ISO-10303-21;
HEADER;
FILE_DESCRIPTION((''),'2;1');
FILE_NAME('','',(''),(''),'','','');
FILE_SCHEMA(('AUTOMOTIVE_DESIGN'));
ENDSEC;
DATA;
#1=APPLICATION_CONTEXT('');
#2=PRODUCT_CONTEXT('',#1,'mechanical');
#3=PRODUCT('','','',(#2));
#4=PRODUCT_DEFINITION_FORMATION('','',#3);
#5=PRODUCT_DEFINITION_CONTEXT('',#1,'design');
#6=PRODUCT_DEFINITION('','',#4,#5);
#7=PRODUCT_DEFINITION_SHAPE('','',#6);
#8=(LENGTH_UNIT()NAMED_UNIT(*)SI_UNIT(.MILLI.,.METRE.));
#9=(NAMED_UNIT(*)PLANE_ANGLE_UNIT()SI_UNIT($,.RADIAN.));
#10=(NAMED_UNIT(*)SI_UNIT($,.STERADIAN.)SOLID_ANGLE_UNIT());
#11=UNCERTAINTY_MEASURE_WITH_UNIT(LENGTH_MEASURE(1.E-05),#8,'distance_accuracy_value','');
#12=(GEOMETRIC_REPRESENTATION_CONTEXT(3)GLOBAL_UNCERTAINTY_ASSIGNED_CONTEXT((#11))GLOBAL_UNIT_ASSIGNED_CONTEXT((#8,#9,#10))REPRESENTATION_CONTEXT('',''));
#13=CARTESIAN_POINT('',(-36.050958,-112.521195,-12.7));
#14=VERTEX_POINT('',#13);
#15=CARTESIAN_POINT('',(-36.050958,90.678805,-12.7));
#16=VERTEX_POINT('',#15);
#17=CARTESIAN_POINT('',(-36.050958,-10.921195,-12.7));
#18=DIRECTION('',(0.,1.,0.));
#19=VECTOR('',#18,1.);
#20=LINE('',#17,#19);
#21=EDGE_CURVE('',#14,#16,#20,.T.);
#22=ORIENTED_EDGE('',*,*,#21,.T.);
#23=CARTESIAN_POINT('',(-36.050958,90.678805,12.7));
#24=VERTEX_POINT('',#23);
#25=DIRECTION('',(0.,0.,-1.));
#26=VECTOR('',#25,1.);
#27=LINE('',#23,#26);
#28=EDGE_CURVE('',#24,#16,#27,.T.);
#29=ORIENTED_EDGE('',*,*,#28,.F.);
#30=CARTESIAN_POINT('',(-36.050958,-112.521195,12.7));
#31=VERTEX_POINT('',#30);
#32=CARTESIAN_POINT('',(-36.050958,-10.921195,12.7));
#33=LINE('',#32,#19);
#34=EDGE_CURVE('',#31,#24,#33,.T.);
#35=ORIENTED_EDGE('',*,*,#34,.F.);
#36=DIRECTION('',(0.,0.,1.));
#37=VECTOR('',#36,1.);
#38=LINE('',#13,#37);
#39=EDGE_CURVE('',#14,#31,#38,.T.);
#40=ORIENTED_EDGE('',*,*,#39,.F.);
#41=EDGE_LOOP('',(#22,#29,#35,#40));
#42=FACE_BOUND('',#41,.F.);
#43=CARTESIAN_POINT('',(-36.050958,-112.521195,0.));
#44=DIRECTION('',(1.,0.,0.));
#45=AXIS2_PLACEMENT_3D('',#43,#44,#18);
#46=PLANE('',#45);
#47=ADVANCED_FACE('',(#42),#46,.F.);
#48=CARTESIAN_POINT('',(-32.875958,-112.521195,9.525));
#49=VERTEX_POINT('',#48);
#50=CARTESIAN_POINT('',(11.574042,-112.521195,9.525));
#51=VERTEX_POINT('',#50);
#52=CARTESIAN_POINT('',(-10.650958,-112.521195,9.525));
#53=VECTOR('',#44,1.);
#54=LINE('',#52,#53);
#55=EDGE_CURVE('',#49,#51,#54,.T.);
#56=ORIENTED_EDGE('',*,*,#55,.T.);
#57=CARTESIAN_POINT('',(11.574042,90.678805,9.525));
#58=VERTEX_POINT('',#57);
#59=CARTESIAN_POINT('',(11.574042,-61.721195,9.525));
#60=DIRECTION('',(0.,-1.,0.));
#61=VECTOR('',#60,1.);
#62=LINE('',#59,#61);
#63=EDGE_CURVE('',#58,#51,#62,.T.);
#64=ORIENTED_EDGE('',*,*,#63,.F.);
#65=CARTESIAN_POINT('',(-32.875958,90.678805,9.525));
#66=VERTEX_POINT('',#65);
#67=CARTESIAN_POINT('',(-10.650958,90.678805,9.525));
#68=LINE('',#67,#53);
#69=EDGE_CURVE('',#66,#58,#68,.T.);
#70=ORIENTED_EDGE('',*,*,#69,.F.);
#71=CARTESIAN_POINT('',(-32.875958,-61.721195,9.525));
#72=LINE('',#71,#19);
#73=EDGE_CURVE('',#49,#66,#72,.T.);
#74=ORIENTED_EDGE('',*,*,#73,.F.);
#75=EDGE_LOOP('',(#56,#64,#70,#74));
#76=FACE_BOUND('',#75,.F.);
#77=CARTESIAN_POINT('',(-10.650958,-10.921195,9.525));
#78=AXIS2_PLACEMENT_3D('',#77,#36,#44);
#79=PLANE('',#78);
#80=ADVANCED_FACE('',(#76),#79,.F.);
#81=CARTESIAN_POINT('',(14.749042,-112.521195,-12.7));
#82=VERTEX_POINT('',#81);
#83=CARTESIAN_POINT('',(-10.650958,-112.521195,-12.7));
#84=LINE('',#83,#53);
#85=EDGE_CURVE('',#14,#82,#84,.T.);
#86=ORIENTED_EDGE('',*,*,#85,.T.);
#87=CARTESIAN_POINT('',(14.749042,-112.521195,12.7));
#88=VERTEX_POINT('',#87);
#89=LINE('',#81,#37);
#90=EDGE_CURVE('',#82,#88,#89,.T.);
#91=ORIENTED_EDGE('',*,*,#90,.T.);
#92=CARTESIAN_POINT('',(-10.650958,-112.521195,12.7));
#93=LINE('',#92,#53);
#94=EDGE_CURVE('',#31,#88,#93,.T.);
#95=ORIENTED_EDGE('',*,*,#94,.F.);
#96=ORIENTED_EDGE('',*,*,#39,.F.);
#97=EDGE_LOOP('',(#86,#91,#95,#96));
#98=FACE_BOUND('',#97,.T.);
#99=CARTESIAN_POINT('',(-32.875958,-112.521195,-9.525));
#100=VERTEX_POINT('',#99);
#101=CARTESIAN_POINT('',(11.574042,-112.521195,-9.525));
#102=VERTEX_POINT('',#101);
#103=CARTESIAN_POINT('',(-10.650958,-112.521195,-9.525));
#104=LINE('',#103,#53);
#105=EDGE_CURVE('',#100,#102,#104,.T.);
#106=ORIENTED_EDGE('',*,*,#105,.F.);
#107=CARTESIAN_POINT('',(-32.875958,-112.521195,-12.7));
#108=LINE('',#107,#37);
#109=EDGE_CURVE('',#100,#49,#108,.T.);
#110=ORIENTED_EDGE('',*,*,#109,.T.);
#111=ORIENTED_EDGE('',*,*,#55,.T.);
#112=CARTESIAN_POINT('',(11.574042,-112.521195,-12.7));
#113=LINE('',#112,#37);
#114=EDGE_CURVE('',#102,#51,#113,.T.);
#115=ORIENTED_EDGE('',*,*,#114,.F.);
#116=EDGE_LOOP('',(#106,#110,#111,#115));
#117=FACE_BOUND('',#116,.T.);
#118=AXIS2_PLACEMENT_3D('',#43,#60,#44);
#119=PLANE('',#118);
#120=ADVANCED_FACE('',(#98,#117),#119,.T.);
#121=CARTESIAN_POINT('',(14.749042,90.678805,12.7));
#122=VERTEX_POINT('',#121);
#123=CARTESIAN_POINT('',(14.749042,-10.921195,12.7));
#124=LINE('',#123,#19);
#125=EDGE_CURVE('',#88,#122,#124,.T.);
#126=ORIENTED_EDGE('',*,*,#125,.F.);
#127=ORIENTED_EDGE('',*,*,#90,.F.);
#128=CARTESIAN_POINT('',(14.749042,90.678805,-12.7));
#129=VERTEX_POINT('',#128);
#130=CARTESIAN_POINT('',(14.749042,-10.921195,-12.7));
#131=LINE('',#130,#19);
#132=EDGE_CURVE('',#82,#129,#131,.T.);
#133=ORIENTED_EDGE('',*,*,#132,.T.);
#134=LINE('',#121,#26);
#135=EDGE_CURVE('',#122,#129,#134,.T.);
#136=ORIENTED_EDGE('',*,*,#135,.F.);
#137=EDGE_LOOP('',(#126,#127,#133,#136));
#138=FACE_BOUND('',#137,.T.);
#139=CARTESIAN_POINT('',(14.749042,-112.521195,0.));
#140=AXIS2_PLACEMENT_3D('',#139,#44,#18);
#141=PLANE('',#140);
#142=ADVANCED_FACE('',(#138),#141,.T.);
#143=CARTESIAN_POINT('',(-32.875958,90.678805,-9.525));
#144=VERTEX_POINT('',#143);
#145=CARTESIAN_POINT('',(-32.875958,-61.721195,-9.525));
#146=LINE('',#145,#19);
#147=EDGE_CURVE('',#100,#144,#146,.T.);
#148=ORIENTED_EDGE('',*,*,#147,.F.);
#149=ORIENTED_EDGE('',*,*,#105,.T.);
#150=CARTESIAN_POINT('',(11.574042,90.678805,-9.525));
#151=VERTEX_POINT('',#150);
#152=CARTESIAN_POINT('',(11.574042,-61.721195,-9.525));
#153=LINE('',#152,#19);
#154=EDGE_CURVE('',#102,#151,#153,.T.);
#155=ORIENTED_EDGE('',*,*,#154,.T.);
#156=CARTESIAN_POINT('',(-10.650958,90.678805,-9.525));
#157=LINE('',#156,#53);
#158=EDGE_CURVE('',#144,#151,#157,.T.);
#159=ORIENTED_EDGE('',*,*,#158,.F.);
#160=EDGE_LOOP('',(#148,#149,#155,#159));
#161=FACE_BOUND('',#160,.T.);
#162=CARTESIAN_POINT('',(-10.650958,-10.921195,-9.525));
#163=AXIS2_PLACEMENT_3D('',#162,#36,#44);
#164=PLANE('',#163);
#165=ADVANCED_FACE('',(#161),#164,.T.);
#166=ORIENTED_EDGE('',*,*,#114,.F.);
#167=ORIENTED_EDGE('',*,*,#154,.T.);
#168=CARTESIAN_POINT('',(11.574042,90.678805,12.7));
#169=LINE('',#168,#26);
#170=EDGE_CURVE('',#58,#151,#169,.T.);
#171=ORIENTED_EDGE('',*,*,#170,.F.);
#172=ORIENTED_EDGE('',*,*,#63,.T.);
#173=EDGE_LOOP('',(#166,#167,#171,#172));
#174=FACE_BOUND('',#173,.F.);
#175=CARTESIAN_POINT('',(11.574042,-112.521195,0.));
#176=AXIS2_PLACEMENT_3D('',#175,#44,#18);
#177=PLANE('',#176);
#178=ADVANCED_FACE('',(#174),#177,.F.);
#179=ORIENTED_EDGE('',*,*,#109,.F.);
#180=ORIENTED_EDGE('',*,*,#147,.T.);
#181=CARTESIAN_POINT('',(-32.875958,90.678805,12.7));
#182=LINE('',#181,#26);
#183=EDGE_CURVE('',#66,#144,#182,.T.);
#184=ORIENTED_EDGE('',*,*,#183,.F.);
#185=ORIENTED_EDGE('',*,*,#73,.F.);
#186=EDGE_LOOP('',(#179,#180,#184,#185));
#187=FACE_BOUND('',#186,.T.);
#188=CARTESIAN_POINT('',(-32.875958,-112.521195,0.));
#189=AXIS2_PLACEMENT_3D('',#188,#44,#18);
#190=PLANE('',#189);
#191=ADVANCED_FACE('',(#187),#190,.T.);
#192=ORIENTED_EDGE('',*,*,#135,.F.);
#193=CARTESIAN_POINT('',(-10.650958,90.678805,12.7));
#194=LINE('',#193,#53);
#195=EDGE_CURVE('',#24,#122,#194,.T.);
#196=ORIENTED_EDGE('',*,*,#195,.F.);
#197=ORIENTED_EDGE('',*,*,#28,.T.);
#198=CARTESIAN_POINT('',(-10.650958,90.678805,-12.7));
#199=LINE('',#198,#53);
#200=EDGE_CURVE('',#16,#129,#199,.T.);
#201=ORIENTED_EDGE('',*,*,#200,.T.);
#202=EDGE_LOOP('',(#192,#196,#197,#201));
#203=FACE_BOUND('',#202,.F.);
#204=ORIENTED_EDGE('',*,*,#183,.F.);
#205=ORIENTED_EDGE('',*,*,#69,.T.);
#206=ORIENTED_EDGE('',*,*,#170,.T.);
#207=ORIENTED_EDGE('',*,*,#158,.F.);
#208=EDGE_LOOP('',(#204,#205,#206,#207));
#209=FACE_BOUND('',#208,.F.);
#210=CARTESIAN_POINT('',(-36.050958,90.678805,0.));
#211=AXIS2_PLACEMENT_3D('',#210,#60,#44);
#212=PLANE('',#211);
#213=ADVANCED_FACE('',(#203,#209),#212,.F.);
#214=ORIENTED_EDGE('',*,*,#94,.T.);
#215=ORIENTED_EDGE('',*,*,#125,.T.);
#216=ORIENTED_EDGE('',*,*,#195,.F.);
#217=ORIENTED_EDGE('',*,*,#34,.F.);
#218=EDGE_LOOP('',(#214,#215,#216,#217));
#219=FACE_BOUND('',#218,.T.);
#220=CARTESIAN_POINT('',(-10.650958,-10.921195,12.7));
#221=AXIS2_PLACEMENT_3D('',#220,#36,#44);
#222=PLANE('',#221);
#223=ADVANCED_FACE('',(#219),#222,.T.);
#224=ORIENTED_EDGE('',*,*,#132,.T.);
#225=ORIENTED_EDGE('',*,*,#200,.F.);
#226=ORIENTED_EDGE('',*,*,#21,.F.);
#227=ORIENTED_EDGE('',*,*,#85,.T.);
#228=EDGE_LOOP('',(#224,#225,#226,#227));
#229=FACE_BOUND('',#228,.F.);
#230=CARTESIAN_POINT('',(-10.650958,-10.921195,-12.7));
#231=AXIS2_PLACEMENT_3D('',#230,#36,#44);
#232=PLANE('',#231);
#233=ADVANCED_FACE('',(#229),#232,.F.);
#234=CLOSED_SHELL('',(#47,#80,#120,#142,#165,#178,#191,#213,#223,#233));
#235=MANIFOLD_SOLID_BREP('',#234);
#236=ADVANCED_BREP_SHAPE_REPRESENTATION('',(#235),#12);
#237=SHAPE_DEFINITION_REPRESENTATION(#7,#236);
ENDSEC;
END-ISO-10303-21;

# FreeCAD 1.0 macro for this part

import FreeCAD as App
import Part
import Sketcher
Q = App.Units.Quantity


def faces_at(feature, points):
    """Names of the faces that lie closest to the given points."""
    faces = feature.Shape.Faces
    near = lambda p: min(range(len(faces)), key=lambda i: faces[i].distToShape(Part.Vertex(*p))[0])
    return sorted({f"Face{near(p) + 1}" for p in points})


def add_polygon(sketch, points):
    """Adds a closed chain of lines whose ends are joined by coincident constraints."""
    first, n = sketch.GeometryCount, len(points)
    for a, b in zip(points, points[1:] + points[:1]):
        sketch.addGeometry(Part.LineSegment(App.Vector(*a, 0), App.Vector(*b, 0)), False)
    for i in range(n):
        sketch.addConstraint(Sketcher.Constraint("Coincident", first + i, 2, first + (i + 1) % n, 1))

doc = App.newDocument("Part")
body = doc.addObject("PartDesign::Body", "Body")

# Sketch on XY plane
sketch1 = doc.addObject("Sketcher::SketchObject", "Sketch")
body.addObject(sketch1)
sketch1.AttachmentSupport = (doc.XY_Plane, [""])
sketch1.MapMode = "FlatFace"
add_polygon(sketch1, [(-36.050958, 90.678805), (-36.050958, -112.521195), (14.749042, -112.521195), (14.749042, 90.678805)])  # lines 0-3
sketch1.addConstraint([
    Sketcher.Constraint("Vertical", 0),
    Sketcher.Constraint("Horizontal", 1),
    Sketcher.Constraint("Vertical", 2),
    Sketcher.Constraint("Horizontal", 3),
    Sketcher.Constraint("DistanceX", 1, 1, 1, 2, Q("2 in")),
    Sketcher.Constraint("DistanceY", 0, 2, 0, 1, Q("8 in")),
    Sketcher.Constraint("DistanceX", -1, 1, 1, 2, 14.749042),
    Sketcher.Constraint("DistanceY", 0, 2, -1, 1, 112.521195),
])
pad1 = doc.addObject("PartDesign::Pad", "Pad")
body.addObject(pad1)
pad1.Profile = sketch1
pad1.Length = Q("1 in")
pad1.Midplane = True
doc.recompute()

thickness = doc.addObject("PartDesign::Thickness", "Thickness")
body.addObject(thickness)
thickness.Base = (pad1, faces_at(pad1, [(-10.651, -112.521, 0), (-10.651, 90.679, 0)]))
thickness.Value = Q("0.125 in")
thickness.Reversed = True
thickness.Join = "Arc"

doc.recompute()
